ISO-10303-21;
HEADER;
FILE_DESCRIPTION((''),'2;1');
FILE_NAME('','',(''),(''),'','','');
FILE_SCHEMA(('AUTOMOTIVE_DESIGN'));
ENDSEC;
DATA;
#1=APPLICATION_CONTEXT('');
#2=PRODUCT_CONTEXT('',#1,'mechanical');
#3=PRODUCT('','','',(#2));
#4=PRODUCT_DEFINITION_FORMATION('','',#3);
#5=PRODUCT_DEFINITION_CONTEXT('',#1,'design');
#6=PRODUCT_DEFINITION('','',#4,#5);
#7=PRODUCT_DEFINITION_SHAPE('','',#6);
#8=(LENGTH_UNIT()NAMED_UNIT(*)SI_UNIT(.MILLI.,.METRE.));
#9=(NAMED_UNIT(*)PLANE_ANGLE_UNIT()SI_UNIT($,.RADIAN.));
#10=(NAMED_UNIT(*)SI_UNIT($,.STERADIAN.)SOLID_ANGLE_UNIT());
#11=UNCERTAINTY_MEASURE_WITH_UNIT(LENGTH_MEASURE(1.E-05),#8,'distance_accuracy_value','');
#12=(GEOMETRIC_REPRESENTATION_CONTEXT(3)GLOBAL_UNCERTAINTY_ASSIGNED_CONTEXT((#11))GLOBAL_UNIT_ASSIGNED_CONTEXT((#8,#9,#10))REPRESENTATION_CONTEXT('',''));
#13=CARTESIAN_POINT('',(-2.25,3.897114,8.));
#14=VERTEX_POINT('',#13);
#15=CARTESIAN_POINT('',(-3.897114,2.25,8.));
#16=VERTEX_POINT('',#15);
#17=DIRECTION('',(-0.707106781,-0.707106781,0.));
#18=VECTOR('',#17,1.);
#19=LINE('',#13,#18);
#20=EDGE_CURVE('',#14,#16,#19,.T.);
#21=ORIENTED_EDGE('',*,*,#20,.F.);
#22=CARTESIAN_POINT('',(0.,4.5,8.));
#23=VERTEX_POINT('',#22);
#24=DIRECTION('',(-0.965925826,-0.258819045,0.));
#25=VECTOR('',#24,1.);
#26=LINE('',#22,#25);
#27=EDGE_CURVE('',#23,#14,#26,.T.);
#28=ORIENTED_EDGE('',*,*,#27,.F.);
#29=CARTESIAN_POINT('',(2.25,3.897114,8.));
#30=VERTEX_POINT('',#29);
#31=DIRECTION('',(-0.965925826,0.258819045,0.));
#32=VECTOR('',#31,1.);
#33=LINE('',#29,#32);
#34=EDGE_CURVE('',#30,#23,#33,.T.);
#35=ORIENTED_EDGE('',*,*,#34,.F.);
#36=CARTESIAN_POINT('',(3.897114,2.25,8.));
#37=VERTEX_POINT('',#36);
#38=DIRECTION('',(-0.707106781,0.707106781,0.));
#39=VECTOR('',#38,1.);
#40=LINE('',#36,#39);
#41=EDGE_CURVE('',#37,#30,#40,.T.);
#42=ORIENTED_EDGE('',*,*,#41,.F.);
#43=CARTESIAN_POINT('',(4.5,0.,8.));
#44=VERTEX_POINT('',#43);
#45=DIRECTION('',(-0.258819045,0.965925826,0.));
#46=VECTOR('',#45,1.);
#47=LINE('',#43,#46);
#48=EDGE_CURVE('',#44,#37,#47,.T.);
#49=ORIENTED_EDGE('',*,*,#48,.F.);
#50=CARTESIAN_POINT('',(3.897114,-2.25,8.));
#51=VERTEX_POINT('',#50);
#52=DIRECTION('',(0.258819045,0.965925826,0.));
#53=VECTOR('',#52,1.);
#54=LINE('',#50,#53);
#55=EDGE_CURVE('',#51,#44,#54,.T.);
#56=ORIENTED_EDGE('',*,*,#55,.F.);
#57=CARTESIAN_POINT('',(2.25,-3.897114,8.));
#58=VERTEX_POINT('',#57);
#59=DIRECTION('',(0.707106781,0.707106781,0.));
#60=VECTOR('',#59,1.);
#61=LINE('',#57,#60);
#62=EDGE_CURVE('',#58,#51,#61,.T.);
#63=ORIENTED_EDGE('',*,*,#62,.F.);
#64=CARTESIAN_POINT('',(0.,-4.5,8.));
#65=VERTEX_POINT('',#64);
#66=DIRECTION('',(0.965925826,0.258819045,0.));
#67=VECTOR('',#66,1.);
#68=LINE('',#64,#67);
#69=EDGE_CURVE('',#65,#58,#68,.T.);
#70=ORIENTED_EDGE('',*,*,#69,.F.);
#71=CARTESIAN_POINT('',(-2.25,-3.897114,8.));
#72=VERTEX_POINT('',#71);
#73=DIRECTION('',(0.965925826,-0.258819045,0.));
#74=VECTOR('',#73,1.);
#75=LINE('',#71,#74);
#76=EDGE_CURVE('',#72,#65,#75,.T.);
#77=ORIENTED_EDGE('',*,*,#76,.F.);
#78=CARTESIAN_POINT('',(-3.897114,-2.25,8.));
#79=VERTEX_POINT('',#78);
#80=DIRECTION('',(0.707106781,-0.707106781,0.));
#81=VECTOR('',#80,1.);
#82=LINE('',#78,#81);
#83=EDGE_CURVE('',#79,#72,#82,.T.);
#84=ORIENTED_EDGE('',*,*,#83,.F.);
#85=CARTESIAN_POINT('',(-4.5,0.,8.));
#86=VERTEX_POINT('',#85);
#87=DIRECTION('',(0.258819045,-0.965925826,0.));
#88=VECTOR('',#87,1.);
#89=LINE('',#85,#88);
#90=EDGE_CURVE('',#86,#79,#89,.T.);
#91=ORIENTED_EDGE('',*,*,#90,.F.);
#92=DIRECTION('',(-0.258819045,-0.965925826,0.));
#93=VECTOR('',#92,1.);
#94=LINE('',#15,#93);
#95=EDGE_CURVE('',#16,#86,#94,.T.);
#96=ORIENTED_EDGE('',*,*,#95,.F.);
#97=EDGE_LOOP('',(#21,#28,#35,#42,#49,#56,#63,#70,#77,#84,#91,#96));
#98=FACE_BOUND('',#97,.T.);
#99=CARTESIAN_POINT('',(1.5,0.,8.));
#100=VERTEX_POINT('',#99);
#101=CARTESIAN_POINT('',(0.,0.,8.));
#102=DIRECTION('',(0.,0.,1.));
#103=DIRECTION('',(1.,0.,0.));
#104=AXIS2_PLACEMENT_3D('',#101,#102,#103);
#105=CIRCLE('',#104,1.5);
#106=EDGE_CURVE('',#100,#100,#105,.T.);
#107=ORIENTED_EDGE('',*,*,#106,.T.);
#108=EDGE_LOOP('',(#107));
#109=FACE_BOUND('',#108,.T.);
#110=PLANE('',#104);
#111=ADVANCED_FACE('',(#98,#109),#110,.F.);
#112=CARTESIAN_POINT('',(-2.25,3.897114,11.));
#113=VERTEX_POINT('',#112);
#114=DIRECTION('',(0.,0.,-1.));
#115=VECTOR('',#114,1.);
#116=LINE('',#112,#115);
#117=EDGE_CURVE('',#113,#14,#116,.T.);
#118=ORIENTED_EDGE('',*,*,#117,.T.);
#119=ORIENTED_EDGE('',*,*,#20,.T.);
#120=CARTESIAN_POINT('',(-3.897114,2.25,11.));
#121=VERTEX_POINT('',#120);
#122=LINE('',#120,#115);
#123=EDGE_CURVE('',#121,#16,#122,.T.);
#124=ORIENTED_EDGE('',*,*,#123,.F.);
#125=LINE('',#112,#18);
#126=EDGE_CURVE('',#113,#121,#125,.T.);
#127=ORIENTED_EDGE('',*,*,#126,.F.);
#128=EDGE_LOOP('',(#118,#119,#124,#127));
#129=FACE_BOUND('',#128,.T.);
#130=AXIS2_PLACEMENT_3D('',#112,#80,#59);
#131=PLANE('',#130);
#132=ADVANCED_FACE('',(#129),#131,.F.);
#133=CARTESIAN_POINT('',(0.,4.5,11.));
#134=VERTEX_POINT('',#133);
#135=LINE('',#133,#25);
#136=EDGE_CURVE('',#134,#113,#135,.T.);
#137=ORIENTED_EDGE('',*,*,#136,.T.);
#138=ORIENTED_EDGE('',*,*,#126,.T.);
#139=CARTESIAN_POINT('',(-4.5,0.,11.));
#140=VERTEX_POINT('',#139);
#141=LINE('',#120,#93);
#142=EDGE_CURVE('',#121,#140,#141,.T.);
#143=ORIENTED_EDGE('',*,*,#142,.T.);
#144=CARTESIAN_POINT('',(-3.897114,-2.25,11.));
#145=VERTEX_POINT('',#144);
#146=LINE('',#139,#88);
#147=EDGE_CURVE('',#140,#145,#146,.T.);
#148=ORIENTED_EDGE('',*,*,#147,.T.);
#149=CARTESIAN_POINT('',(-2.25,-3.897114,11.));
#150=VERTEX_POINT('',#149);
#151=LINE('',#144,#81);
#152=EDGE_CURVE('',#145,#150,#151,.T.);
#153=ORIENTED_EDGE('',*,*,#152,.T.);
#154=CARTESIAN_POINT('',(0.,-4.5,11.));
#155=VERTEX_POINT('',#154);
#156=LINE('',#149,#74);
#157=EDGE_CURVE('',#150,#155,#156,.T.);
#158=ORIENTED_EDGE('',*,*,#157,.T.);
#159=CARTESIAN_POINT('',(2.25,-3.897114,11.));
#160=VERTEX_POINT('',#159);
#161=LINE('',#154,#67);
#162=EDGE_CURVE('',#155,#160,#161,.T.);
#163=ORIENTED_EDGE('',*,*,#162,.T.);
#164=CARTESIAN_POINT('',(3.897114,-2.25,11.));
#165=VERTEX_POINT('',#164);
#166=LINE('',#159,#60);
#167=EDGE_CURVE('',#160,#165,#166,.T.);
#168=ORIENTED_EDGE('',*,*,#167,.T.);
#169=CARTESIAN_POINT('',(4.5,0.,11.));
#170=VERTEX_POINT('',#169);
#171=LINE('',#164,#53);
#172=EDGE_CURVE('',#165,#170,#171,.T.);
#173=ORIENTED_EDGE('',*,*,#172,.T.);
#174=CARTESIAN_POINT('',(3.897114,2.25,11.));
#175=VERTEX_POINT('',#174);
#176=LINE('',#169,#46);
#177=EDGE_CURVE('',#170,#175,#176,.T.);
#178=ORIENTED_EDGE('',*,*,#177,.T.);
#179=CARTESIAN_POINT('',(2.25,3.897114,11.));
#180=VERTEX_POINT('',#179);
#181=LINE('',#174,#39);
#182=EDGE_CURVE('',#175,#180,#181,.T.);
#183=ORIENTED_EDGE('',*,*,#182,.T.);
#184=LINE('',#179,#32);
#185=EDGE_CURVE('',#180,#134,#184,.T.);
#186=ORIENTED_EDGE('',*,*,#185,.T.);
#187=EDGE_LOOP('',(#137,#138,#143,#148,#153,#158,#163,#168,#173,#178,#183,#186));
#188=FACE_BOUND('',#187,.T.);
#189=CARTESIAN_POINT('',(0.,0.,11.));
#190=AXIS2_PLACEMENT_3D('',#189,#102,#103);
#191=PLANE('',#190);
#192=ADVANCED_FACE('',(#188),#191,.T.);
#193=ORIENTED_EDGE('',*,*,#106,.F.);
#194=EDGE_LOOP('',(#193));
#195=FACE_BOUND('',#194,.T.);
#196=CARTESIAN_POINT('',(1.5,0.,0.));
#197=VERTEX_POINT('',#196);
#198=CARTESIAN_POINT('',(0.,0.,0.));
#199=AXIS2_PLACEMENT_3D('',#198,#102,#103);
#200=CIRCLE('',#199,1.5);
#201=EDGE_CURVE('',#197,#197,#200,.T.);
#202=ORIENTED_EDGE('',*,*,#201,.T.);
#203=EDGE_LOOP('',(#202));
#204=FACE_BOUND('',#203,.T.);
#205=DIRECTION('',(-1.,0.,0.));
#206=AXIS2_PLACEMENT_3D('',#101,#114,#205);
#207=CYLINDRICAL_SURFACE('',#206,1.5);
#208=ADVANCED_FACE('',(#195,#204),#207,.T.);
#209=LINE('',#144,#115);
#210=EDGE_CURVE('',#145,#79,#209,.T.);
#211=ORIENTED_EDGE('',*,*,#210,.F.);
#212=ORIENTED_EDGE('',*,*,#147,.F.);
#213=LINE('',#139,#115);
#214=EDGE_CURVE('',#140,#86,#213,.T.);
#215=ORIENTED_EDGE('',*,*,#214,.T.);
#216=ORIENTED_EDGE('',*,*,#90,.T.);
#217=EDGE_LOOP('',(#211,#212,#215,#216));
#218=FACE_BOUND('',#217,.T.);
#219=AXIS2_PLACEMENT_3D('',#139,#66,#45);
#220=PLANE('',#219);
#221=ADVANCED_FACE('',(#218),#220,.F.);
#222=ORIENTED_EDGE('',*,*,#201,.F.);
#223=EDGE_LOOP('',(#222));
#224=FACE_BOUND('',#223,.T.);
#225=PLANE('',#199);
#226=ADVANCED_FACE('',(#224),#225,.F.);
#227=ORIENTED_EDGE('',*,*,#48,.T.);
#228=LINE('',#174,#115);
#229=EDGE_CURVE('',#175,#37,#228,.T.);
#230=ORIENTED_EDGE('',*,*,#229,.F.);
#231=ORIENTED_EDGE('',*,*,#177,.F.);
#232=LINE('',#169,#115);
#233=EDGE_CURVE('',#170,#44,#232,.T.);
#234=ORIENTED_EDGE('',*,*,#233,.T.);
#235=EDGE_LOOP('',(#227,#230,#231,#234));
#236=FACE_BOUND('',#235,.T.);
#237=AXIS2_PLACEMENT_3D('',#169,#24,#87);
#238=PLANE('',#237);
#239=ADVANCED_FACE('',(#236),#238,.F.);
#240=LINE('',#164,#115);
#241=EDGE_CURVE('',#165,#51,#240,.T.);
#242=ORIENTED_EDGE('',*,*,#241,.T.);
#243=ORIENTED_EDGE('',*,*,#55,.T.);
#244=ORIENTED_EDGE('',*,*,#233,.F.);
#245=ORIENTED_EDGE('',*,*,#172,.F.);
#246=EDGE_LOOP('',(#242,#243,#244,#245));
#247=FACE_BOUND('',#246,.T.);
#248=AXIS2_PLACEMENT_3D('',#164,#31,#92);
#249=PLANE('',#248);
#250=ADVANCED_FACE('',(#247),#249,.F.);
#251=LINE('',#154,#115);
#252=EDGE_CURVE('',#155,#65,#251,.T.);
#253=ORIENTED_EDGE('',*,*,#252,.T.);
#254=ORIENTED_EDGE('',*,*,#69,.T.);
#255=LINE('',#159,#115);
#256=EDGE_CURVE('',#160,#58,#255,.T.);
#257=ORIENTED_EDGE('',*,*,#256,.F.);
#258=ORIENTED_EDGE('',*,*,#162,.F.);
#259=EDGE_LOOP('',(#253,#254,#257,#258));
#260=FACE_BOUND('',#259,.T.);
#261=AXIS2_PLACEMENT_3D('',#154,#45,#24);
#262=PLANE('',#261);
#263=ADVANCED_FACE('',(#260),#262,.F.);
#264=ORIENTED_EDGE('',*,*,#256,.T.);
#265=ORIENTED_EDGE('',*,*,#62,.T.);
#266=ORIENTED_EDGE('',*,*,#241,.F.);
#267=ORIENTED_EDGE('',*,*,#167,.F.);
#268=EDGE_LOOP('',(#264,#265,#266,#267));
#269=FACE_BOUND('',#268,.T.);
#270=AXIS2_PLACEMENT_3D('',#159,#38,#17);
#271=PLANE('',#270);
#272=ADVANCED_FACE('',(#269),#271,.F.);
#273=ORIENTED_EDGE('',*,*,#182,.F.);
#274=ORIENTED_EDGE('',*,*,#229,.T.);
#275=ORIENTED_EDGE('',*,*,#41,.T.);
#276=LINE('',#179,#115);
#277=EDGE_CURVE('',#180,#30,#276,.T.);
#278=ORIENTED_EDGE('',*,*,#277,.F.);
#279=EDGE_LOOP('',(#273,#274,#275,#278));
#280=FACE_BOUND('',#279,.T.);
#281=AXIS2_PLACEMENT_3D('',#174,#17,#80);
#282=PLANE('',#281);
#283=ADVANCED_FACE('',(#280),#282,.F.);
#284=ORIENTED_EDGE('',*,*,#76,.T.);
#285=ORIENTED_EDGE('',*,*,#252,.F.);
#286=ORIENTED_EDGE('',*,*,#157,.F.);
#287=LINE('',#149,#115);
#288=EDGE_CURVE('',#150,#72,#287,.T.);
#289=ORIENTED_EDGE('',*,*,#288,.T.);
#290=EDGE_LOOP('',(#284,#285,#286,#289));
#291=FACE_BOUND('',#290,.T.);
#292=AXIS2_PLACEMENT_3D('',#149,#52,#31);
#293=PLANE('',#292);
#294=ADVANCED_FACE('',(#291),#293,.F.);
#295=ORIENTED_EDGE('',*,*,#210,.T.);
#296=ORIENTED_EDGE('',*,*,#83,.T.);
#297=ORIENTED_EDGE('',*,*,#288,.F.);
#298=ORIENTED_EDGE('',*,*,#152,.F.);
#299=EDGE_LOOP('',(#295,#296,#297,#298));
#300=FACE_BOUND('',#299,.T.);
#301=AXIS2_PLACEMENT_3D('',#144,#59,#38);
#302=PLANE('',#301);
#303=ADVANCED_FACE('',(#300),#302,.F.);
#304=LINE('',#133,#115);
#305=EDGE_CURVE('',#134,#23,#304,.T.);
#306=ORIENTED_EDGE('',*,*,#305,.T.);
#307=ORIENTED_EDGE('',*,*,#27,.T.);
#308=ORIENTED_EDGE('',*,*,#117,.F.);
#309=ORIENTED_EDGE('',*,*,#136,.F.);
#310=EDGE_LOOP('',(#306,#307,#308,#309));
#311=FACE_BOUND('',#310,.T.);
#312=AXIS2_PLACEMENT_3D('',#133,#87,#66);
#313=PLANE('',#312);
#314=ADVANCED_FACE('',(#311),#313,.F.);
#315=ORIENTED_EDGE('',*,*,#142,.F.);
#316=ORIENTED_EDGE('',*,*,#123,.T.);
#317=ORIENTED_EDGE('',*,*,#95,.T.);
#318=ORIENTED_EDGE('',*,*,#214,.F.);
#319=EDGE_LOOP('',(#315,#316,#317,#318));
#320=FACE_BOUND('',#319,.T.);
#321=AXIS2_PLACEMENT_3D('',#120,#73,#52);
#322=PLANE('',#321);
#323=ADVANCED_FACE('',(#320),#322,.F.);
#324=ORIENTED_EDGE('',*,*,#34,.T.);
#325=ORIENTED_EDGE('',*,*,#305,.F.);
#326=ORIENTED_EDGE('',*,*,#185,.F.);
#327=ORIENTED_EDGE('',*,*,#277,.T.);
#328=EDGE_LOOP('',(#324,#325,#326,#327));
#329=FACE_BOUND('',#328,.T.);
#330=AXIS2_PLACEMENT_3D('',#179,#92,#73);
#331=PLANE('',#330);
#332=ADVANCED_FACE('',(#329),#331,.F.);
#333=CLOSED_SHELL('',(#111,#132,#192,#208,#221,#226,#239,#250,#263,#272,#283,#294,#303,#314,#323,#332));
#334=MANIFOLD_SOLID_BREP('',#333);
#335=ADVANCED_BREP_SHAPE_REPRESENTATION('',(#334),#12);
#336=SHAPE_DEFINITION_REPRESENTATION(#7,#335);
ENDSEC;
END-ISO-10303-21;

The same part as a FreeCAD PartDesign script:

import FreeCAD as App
import Part
import Sketcher
from FreeCAD import Vector
Q = App.Units.Quantity

doc = App.newDocument("Part")
body = doc.addObject("PartDesign::Body", "Body")

# Sketch on XY plane
sketch1 = body.newObject("Sketcher::SketchObject", "Sketch")
sketch1.AttachmentSupport = (doc.getObject("XY_Plane"), [""])
sketch1.MapMode = "FlatFace"
sketch1.addGeometry(Part.Circle(Vector(0, 0, 0), Vector(0, 0, 1), 1.5), False)
sketch1.addConstraint(Sketcher.Constraint("Coincident", 0, 3, -1, 1))
sketch1.addConstraint(Sketcher.Constraint("Diameter", 0, Q("3 mm")))
pad1 = body.newObject("PartDesign::Pad", "Pad")
pad1.Profile = sketch1
pad1.Length = 8

# Sketch on XY plane
sketch2 = body.newObject("Sketcher::SketchObject", "Sketch001")
sketch2.AttachmentSupport = (doc.getObject("XY_Plane"), [""])
sketch2.MapMode = "FlatFace"
sketch2.AttachmentOffset = App.Placement(Vector(0, 0, 8), App.Rotation())
sketch2.addGeometry(Part.LineSegment(Vector(4.5, 0, 0), Vector(3.9, 2.2, 0)), False)
sketch2.addGeometry(Part.LineSegment(Vector(3.9, 2.2, 0), Vector(2.2, 3.9, 0)), False)
sketch2.addGeometry(Part.LineSegment(Vector(2.2, 3.9, 0), Vector(0, 4.5, 0)), False)
sketch2.addGeometry(Part.LineSegment(Vector(0, 4.5, 0), Vector(-2.2, 3.9, 0)), False)
sketch2.addGeometry(Part.LineSegment(Vector(-2.2, 3.9, 0), Vector(-3.9, 2.2, 0)), False)
sketch2.addGeometry(Part.LineSegment(Vector(-3.9, 2.2, 0), Vector(-4.5, 0, 0)), False)
sketch2.addGeometry(Part.LineSegment(Vector(-4.5, 0, 0), Vector(-3.9, -2.2, 0)), False)
sketch2.addGeometry(Part.LineSegment(Vector(-3.9, -2.2, 0), Vector(-2.2, -3.9, 0)), False)
sketch2.addGeometry(Part.LineSegment(Vector(-2.2, -3.9, 0), Vector(0, -4.5, 0)), False)
sketch2.addGeometry(Part.LineSegment(Vector(0, -4.5, 0), Vector(2.2, -3.9, 0)), False)
sketch2.addGeometry(Part.LineSegment(Vector(2.2, -3.9, 0), Vector(3.9, -2.2, 0)), False)
sketch2.addGeometry(Part.LineSegment(Vector(3.9, -2.2, 0), Vector(4.5, 0, 0)), False)
sketch2.addConstraint(Sketcher.Constraint("Coincident", 0, 2, 1, 1))
sketch2.addConstraint(Sketcher.Constraint("Coincident", 1, 2, 2, 1))
sketch2.addConstraint(Sketcher.Constraint("Coincident", 2, 2, 3, 1))
sketch2.addConstraint(Sketcher.Constraint("Coincident", 3, 2, 4, 1))
sketch2.addConstraint(Sketcher.Constraint("Coincident", 4, 2, 5, 1))
sketch2.addConstraint(Sketcher.Constraint("Coincident", 5, 2, 6, 1))
sketch2.addConstraint(Sketcher.Constraint("Coincident", 6, 2, 7, 1))
sketch2.addConstraint(Sketcher.Constraint("Coincident", 7, 2, 8, 1))
sketch2.addConstraint(Sketcher.Constraint("Coincident", 8, 2, 9, 1))
sketch2.addConstraint(Sketcher.Constraint("Coincident", 9, 2, 10, 1))
sketch2.addConstraint(Sketcher.Constraint("Coincident", 10, 2, 11, 1))
sketch2.addConstraint(Sketcher.Constraint("Coincident", 11, 2, 0, 1))
sketch2.addConstraint(Sketcher.Constraint("Symmetric", 0, 2, 6, 2, -1, 1))
sketch2.addConstraint(Sketcher.Constraint("Symmetric", 1, 2, 7, 2, -1, 1))
sketch2.addConstraint(Sketcher.Constraint("Symmetric", 2, 2, 8, 2, -1, 1))
sketch2.addConstraint(Sketcher.Constraint("Symmetric", 3, 2, 9, 2, -1, 1))
sketch2.addConstraint(Sketcher.Constraint("Symmetric", 4, 2, 10, 2, -1, 1))
sketch2.addConstraint(Sketcher.Constraint("Symmetric", 5, 2, 11, 2, -1, 1))
sketch2.addConstraint(Sketcher.Constraint("Symmetric", 1, 2, 3, 2, -2))
sketch2.addConstraint(Sketcher.Constraint("Symmetric", 0, 2, 4, 2, -2))
sketch2.addConstraint(Sketcher.Constraint("PointOnObject", 2, 2, -2))
sketch2.addConstraint(Sketcher.Constraint("PointOnObject", 5, 2, -1))
sketch2.addConstraint(Sketcher.Constraint("Perpendicular", 0, 3))
sketch2.addConstraint(Sketcher.Constraint("Perpendicular", 1, 4))
sketch2.addConstraint(Sketcher.Constraint("Equal", 0, 1))
sketch2.addConstraint(Sketcher.Constraint("Equal", 1, 2))
sketch2.addConstraint(Sketcher.Constraint("Angle", 0, Q("105 deg")))
sketch2.addConstraint(Sketcher.Constraint("DistanceY", -1, 1, 2, 2, Q("4.5 mm")))
pad2 = body.newObject("PartDesign::Pad", "Pad001")
pad2.Profile = sketch2
pad2.Length = 3

doc.recompute()
